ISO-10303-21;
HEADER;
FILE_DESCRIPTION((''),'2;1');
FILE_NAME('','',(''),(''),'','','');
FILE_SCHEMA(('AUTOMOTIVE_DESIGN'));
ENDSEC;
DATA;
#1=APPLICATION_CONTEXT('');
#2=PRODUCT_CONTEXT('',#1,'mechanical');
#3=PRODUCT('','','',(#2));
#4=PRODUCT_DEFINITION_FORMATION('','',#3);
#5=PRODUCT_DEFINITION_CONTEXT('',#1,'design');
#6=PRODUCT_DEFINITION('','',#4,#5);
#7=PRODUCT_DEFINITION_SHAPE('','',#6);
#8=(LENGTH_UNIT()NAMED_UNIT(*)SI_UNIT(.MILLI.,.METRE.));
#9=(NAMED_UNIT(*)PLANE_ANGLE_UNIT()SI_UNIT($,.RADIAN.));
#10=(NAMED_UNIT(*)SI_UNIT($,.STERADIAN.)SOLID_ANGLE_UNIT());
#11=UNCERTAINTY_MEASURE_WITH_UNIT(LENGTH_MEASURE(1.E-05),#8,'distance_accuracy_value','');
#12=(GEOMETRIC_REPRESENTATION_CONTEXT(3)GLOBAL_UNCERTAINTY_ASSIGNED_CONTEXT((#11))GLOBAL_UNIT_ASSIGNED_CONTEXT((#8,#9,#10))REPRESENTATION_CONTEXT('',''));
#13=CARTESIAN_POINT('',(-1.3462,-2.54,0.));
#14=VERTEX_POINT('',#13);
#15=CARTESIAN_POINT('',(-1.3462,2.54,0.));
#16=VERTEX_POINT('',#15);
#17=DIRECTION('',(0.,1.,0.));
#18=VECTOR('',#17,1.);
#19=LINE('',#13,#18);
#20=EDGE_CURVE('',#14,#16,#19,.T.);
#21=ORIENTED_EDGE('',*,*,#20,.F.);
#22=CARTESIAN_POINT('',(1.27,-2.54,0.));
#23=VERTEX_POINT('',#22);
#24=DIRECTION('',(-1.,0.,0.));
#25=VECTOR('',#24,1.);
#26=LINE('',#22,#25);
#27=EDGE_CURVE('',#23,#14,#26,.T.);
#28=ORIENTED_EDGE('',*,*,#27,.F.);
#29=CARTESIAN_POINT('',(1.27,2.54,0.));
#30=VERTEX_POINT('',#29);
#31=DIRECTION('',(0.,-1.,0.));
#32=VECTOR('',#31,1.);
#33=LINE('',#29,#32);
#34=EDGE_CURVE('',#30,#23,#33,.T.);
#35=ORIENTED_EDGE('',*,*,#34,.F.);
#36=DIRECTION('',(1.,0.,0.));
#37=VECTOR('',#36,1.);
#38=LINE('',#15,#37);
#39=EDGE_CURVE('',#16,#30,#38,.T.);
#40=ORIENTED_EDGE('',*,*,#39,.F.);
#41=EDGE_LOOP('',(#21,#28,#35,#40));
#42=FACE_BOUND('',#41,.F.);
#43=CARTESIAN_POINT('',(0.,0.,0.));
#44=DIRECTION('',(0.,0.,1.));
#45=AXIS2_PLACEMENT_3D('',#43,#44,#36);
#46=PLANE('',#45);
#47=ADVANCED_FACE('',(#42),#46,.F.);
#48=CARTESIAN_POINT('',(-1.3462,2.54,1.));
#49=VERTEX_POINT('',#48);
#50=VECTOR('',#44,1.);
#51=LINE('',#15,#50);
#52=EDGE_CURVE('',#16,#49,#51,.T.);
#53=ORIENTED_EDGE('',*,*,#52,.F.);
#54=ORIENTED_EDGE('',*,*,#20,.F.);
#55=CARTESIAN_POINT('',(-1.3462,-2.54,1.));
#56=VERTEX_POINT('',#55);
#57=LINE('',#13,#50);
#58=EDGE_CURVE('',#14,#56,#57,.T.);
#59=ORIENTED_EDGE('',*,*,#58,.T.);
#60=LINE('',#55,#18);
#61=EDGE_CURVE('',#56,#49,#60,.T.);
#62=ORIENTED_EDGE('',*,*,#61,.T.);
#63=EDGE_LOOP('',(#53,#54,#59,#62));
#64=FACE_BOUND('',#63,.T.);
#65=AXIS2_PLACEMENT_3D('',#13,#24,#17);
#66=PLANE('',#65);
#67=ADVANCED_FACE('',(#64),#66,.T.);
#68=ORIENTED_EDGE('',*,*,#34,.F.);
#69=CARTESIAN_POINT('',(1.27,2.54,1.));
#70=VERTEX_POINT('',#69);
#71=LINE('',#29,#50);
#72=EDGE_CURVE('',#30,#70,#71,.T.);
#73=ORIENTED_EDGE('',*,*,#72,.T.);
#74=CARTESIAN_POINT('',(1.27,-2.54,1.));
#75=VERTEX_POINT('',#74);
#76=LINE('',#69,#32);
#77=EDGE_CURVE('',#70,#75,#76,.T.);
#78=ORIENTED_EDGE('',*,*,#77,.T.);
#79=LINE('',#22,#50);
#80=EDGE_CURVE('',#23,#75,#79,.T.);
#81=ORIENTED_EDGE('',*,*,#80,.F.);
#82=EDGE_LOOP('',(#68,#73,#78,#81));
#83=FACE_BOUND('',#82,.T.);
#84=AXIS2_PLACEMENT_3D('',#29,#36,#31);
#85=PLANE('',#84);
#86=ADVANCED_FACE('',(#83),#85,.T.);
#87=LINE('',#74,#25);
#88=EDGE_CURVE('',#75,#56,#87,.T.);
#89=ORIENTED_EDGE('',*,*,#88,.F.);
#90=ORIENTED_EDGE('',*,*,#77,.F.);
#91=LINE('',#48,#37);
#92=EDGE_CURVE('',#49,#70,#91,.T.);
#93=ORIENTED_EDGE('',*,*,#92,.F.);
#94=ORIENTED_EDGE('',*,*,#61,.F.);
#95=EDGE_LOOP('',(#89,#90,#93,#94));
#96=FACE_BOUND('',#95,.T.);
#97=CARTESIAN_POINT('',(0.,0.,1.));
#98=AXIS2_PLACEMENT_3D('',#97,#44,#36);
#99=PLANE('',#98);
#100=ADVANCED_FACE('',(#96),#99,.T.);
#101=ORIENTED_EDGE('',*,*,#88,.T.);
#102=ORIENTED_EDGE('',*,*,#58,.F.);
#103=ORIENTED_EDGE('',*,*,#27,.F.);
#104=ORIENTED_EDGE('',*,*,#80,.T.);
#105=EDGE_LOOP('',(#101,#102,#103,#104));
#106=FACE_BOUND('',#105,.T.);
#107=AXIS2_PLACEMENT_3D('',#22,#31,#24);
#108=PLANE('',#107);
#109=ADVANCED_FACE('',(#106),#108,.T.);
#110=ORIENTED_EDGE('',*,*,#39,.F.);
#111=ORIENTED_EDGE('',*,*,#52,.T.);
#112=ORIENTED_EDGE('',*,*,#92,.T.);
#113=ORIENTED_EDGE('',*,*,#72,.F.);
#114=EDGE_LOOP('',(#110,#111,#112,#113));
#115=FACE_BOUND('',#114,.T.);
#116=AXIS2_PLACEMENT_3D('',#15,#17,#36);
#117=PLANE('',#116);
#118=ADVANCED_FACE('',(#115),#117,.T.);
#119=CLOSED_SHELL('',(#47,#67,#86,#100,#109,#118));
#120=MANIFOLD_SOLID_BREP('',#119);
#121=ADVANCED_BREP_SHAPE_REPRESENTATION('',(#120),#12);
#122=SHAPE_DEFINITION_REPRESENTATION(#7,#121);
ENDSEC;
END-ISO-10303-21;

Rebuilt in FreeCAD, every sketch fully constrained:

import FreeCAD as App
import Part
import Sketcher
from FreeCAD import Vector
Q = App.Units.Quantity

doc = App.newDocument("Part")
params = doc.addObject("Spreadsheet::Sheet", "Params")
for row, (alias, value) in enumerate([
    ("sketch1_height", "0.2 in"),
    ("sketch1_width", "0.103 in"),
    ("pad1_length", "1 mm"),
], start=1):
    params.set(f"A{row}", alias)
    params.set(f"B{row}", "=" + value)
    params.setAlias(f"B{row}", alias)

body = doc.addObject("PartDesign::Body", "Body")

sketch1 = doc.addObject("Sketcher::SketchObject", "Sketch")
body.addObject(sketch1)
sketch1.AttachmentSupport = (doc.XY_Plane, [""])
sketch1.MapMode = "FlatFace"
sketch1.addGeometry([
    Part.LineSegment(Vector(1.3, 2.5, 0), Vector(-1.3, 2.5, 0)),
    Part.LineSegment(Vector(-1.3, 2.5, 0), Vector(-1.3, -2.5, 0)),
    Part.LineSegment(Vector(-1.3, -2.5, 0), Vector(1.3, -2.5, 0)),
    Part.LineSegment(Vector(1.3, -2.5, 0), Vector(1.3, 2.5, 0)),
], False)
sketch1.addConstraint([
    Sketcher.Constraint("Coincident", 0, 2, 1, 1),
    Sketcher.Constraint("Coincident", 1, 2, 2, 1),
    Sketcher.Constraint("Coincident", 2, 2, 3, 1),
    Sketcher.Constraint("Coincident", 3, 2, 0, 1),
    Sketcher.Constraint("Horizontal", 0),
    Sketcher.Constraint("Vertical", 1),
    Sketcher.Constraint("Horizontal", 2),
    Sketcher.Constraint("Vertical", 3),
    Sketcher.Constraint("DistanceY", 1, 2, 1, 1, Q("0.2 in")),
    Sketcher.Constraint("DistanceY", -1, 1, 0, 2, Q("0.1 in")),
    Sketcher.Constraint("DistanceX", 0, 2, 0, 1, Q("0.103 in")),
    Sketcher.Constraint("DistanceX", -1, 1, 2, 2, Q("0.05 in")),
])
sketch1.setExpression("Constraints[8]", "Params.sketch1_height")
sketch1.setExpression("Constraints[10]", "Params.sketch1_width")
pad1 = doc.addObject("PartDesign::Pad", "Pad")
body.addObject(pad1)
pad1.Profile = sketch1
pad1.setExpression("Length", "Params.pad1_length")

doc.recompute()
